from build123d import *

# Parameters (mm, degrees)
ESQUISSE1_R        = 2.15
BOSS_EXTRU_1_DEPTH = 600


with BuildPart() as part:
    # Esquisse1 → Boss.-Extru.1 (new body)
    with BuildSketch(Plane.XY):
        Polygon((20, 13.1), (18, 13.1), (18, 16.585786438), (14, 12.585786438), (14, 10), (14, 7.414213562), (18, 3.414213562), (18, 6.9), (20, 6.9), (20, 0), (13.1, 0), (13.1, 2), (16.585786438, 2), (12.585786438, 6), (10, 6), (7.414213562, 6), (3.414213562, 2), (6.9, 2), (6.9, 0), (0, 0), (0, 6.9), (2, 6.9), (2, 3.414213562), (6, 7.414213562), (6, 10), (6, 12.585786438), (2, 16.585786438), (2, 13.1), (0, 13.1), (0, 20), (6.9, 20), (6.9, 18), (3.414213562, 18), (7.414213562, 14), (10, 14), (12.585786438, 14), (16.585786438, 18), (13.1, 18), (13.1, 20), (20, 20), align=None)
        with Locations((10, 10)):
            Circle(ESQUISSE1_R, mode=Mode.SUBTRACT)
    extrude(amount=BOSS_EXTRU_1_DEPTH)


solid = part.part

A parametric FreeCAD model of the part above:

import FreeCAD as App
import Part
import Sketcher

doc = App.newDocument("Part")
params = doc.addObject("Spreadsheet::Sheet", "Params")
for row, (alias, value) in enumerate([
    ("sketch1_diameter", "4.3 mm"),
    ("sketch1_width", "2 mm"),
    ("sketch1_width2", "6.9 mm"),
    ("pad1_length", "600 mm"),
], start=1):
    params.set(f"A{row}", alias)
    params.set(f"B{row}", "=" + value)
    params.setAlias(f"B{row}", alias)

body = doc.addObject("PartDesign::Body", "Body")

# Sketch on XY plane
sketch1 = doc.addObject("Sketcher::SketchObject", "Sketch")
body.addObject(sketch1)
sketch1.AttachmentSupport = (doc.XY_Plane, [""])
sketch1.MapMode = "FlatFace"
sketch1.addGeometry(Part.LineSegment(App.Vector(18, 13.1, 0), App.Vector(20, 13.1, 0)), False)
sketch1.addGeometry(Part.LineSegment(App.Vector(20, 13.1, 0), App.Vector(20, 20, 0)), False)
sketch1.addGeometry(Part.LineSegment(App.Vector(20, 20, 0), App.Vector(13.1, 20, 0)), False)
sketch1.addGeometry(Part.LineSegment(App.Vector(13.1, 20, 0), App.Vector(13.1, 18, 0)), False)
sketch1.addGeometry(Part.LineSegment(App.Vector(13.1, 18, 0), App.Vector(16.6, 18, 0)), False)
sketch1.addGeometry(Part.LineSegment(App.Vector(16.6, 18, 0), App.Vector(12.6, 14, 0)), False)
sketch1.addGeometry(Part.LineSegment(App.Vector(12.6, 14, 0), App.Vector(7.4, 14, 0)), False)
sketch1.addGeometry(Part.LineSegment(App.Vector(7.4, 14, 0), App.Vector(3.4, 18, 0)), False)
sketch1.addGeometry(Part.LineSegment(App.Vector(3.4, 18, 0), App.Vector(6.9, 18, 0)), False)
sketch1.addGeometry(Part.LineSegment(App.Vector(6.9, 18, 0), App.Vector(6.9, 20, 0)), False)
sketch1.addGeometry(Part.LineSegment(App.Vector(6.9, 20, 0), App.Vector(0, 20, 0)), False)
sketch1.addGeometry(Part.LineSegment(App.Vector(0, 20, 0), App.Vector(0, 13.1, 0)), False)
sketch1.addGeometry(Part.LineSegment(App.Vector(0, 13.1, 0), App.Vector(2, 13.1, 0)), False)
sketch1.addGeometry(Part.LineSegment(App.Vector(2, 13.1, 0), App.Vector(2, 16.6, 0)), False)
sketch1.addGeometry(Part.LineSegment(App.Vector(2, 16.6, 0), App.Vector(6, 12.6, 0)), False)
sketch1.addGeometry(Part.LineSegment(App.Vector(6, 12.6, 0), App.Vector(6, 7.4, 0)), False)
sketch1.addGeometry(Part.LineSegment(App.Vector(6, 7.4, 0), App.Vector(2, 3.4, 0)), False)
sketch1.addGeometry(Part.LineSegment(App.Vector(2, 3.4, 0), App.Vector(2, 6.9, 0)), False)
sketch1.addGeometry(Part.LineSegment(App.Vector(2, 6.9, 0), App.Vector(0, 6.9, 0)), False)
sketch1.addGeometry(Part.LineSegment(App.Vector(0, 6.9, 0), App.Vector(0, 0, 0)), False)
sketch1.addGeometry(Part.LineSegment(App.Vector(0, 0, 0), App.Vector(6.9, 0, 0)), False)
sketch1.addGeometry(Part.LineSegment(App.Vector(6.9, 0, 0), App.Vector(6.9, 2, 0)), False)
sketch1.addGeometry(Part.LineSegment(App.Vector(6.9, 2, 0), App.Vector(3.4, 2, 0)), False)
sketch1.addGeometry(Part.LineSegment(App.Vector(3.4, 2, 0), App.Vector(7.4, 6, 0)), False)
sketch1.addGeometry(Part.LineSegment(App.Vector(7.4, 6, 0), App.Vector(12.6, 6, 0)), False)
sketch1.addGeometry(Part.LineSegment(App.Vector(12.6, 6, 0), App.Vector(16.6, 2, 0)), False)
sketch1.addGeometry(Part.LineSegment(App.Vector(16.6, 2, 0), App.Vector(13.1, 2, 0)), False)
sketch1.addGeometry(Part.LineSegment(App.Vector(13.1, 2, 0), App.Vector(13.1, 0, 0)), False)
sketch1.addGeometry(Part.LineSegment(App.Vector(13.1, 0, 0), App.Vector(20, 0, 0)), False)
sketch1.addGeometry(Part.LineSegment(App.Vector(20, 0, 0), App.Vector(20, 6.9, 0)), False)
sketch1.addGeometry(Part.LineSegment(App.Vector(20, 6.9, 0), App.Vector(18, 6.9, 0)), False)
sketch1.addGeometry(Part.LineSegment(App.Vector(18, 6.9, 0), App.Vector(18, 3.4, 0)), False)
sketch1.addGeometry(Part.LineSegment(App.Vector(18, 3.4, 0), App.Vector(14, 7.4, 0)), False)
sketch1.addGeometry(Part.LineSegment(App.Vector(14, 7.4, 0), App.Vector(14, 12.6, 0)), False)
sketch1.addGeometry(Part.LineSegment(App.Vector(14, 12.6, 0), App.Vector(18, 16.6, 0)), False)
sketch1.addGeometry(Part.LineSegment(App.Vector(18, 16.6, 0), App.Vector(18, 13.1, 0)), False)
sketch1.addGeometry(Part.Circle(App.Vector(10, 10, 0), App.Vector(0, 0, 1), 2.1), False)
sketch1.addConstraint(Sketcher.Constraint("Coincident", 0, 2, 1, 1))
sketch1.addConstraint(Sketcher.Constraint("Coincident", 1, 2, 2, 1))
sketch1.addConstraint(Sketcher.Constraint("Coincident", 2, 2, 3, 1))
sketch1.addConstraint(Sketcher.Constraint("Coincident", 3, 2, 4, 1))
sketch1.addConstraint(Sketcher.Constraint("Coincident", 4, 2, 5, 1))
sketch1.addConstraint(Sketcher.Constraint("Coincident", 5, 2, 6, 1))
sketch1.addConstraint(Sketcher.Constraint("Coincident", 6, 2, 7, 1))
sketch1.addConstraint(Sketcher.Constraint("Coincident", 7, 2, 8, 1))
sketch1.addConstraint(Sketcher.Constraint("Coincident", 8, 2, 9, 1))
sketch1.addConstraint(Sketcher.Constraint("Coincident", 9, 2, 10, 1))
sketch1.addConstraint(Sketcher.Constraint("Coincident", 10, 2, 11, 1))
sketch1.addConstraint(Sketcher.Constraint("Coincident", 11, 2, 12, 1))
sketch1.addConstraint(Sketcher.Constraint("Coincident", 12, 2, 13, 1))
sketch1.addConstraint(Sketcher.Constraint("Coincident", 13, 2, 14, 1))
sketch1.addConstraint(Sketcher.Constraint("Coincident", 14, 2, 15, 1))
sketch1.addConstraint(Sketcher.Constraint("Coincident", 15, 2, 16, 1))
sketch1.addConstraint(Sketcher.Constraint("Coincident", 16, 2, 17, 1))
sketch1.addConstraint(Sketcher.Constraint("Coincident", 17, 2, 18, 1))
sketch1.addConstraint(Sketcher.Constraint("Coincident", 18, 2, 19, 1))
sketch1.addConstraint(Sketcher.Constraint("Coincident", 19, 2, 20, 1))
sketch1.addConstraint(Sketcher.Constraint("Coincident", 20, 2, 21, 1))
sketch1.addConstraint(Sketcher.Constraint("Coincident", 21, 2, 22, 1))
sketch1.addConstraint(Sketcher.Constraint("Coincident", 22, 2, 23, 1))
sketch1.addConstraint(Sketcher.Constraint("Coincident", 23, 2, 24, 1))
sketch1.addConstraint(Sketcher.Constraint("Coincident", 24, 2, 25, 1))
sketch1.addConstraint(Sketcher.Constraint("Coincident", 25, 2, 26, 1))
sketch1.addConstraint(Sketcher.Constraint("Coincident", 26, 2, 27, 1))
sketch1.addConstraint(Sketcher.Constraint("Coincident", 27, 2, 28, 1))
sketch1.addConstraint(Sketcher.Constraint("Coincident", 28, 2, 29, 1))
sketch1.addConstraint(Sketcher.Constraint("Coincident", 29, 2, 30, 1))
sketch1.addConstraint(Sketcher.Constraint("Coincident", 30, 2, 31, 1))
sketch1.addConstraint(Sketcher.Constraint("Coincident", 31, 2, 32, 1))
sketch1.addConstraint(Sketcher.Constraint("Coincident", 32, 2, 33, 1))
sketch1.addConstraint(Sketcher.Constraint("Coincident", 33, 2, 34, 1))
sketch1.addConstraint(Sketcher.Constraint("Coincident", 34, 2, 35, 1))
sketch1.addConstraint(Sketcher.Constraint("Coincident", 35, 2, 0, 1))
sketch1.addConstraint(Sketcher.Constraint("Horizontal", 0))
sketch1.addConstraint(Sketcher.Constraint("Vertical", 1))
sketch1.addConstraint(Sketcher.Constraint("Horizontal", 2))
sketch1.addConstraint(Sketcher.Constraint("Vertical", 3))
sketch1.addConstraint(Sketcher.Constraint("Horizontal", 4))
sketch1.addConstraint(Sketcher.Constraint("Horizontal", 6))
sketch1.addConstraint(Sketcher.Constraint("Horizontal", 8))
sketch1.addConstraint(Sketcher.Constraint("Vertical", 9))
sketch1.addConstraint(Sketcher.Constraint("Horizontal", 10))
sketch1.addConstraint(Sketcher.Constraint("Vertical", 11))
sketch1.addConstraint(Sketcher.Constraint("Horizontal", 12))
sketch1.addConstraint(Sketcher.Constraint("Vertical", 13))
sketch1.addConstraint(Sketcher.Constraint("Vertical", 15))
sketch1.addConstraint(Sketcher.Constraint("Vertical", 17))
sketch1.addConstraint(Sketcher.Constraint("Horizontal", 18))
sketch1.addConstraint(Sketcher.Constraint("Vertical", 19))
sketch1.addConstraint(Sketcher.Constraint("Horizontal", 20))
sketch1.addConstraint(Sketcher.Constraint("Vertical", 21))
sketch1.addConstraint(Sketcher.Constraint("Horizontal", 22))
sketch1.addConstraint(Sketcher.Constraint("Horizontal", 24))
sketch1.addConstraint(Sketcher.Constraint("Horizontal", 26))
sketch1.addConstraint(Sketcher.Constraint("Vertical", 27))
sketch1.addConstraint(Sketcher.Constraint("Horizontal", 28))
sketch1.addConstraint(Sketcher.Constraint("Vertical", 29))
sketch1.addConstraint(Sketcher.Constraint("Horizontal", 30))
sketch1.addConstraint(Sketcher.Constraint("Vertical", 31))
sketch1.addConstraint(Sketcher.Constraint("Vertical", 33))
sketch1.addConstraint(Sketcher.Constraint("Vertical", 35))
sketch1.addConstraint(Sketcher.Constraint("Coincident", 19, 2, -1, 1))
sketch1.addConstraint(Sketcher.Constraint("PointOnObject", 10, 2, -2))
sketch1.addConstraint(Sketcher.Constraint("PointOnObject", 27, 2, -1))
sketch1.addConstraint(Sketcher.Constraint("Perpendicular", 5, 7))
sketch1.addConstraint(Sketcher.Constraint("Parallel", 7, 14))
sketch1.addConstraint(Sketcher.Constraint("Perpendicular", 14, 16))
sketch1.addConstraint(Sketcher.Constraint("Parallel", 16, 23))
sketch1.addConstraint(Sketcher.Constraint("Perpendicular", 23, 25))
sketch1.addConstraint(Sketcher.Constraint("Parallel", 25, 32))
sketch1.addConstraint(Sketcher.Constraint("Perpendicular", 32, 34))
sketch1.addConstraint(Sketcher.Constraint("Horizontal", 4, 2, 7, 2))
sketch1.addConstraint(Sketcher.Constraint("Horizontal", 2, 2, 9, 2))
sketch1.addConstraint(Sketcher.Constraint("Horizontal", 0, 2, 11, 2))
sketch1.addConstraint(Sketcher.Constraint("Horizontal", 22, 2, 25, 2))
sketch1.addConstraint(Sketcher.Constraint("Horizontal", 18, 2, 29, 2))
sketch1.addConstraint(Sketcher.Constraint("Horizontal", 16, 2, 31, 2))
sketch1.addConstraint(Sketcher.Constraint("Horizontal", 15, 2, 32, 2))
sketch1.addConstraint(Sketcher.Constraint("Horizontal", 14, 2, 33, 2))
sketch1.addConstraint(Sketcher.Constraint("Horizontal", 13, 2, 34, 2))
sketch1.addConstraint(Sketcher.Constraint("Vertical", 13, 2, 16, 2))
sketch1.addConstraint(Sketcher.Constraint("Vertical", 9, 2, 20, 2))
sketch1.addConstraint(Sketcher.Constraint("Vertical", 7, 2, 22, 2))
sketch1.addConstraint(Sketcher.Constraint("Vertical", 6, 2, 23, 2))
sketch1.addConstraint(Sketcher.Constraint("Vertical", 5, 2, 24, 2))
sketch1.addConstraint(Sketcher.Constraint("Vertical", 4, 2, 25, 2))
sketch1.addConstraint(Sketcher.Constraint("Vertical", 3, 2, 26, 2))
sketch1.addConstraint(Sketcher.Constraint("Vertical", 1, 2, 28, 2))
sketch1.addConstraint(Sketcher.Constraint("Equal", 4, 8))
sketch1.addConstraint(Sketcher.Constraint("Equal", 2, 10))
sketch1.addConstraint(Sketcher.Constraint("Equal", 0, 12))
sketch1.addConstraint(Sketcher.Constraint("Equal", 28, 1))
sketch1.addConstraint(Sketcher.Constraint("Equal", 30, 3))
sketch1.addConstraint(Sketcher.Constraint("Equal", 26, 13))
sketch1.addConstraint(Sketcher.Constraint("Equal", 24, 15))
sketch1.addConstraint(Sketcher.Constraint("Equal", 13, 17))
sketch1.addConstraint(Sketcher.Constraint("Equal", 11, 19))
sketch1.addConstraint(Sketcher.Constraint("Equal", 9, 21))
sketch1.addConstraint(Sketcher.Constraint("Equal", 7, 14))
sketch1.addConstraint(Sketcher.Constraint("Diameter", 36, 4.3))
sketch1.addConstraint(Sketcher.Constraint("DistanceX", 0, 1, 0, 2, 2.0))
sketch1.addConstraint(Sketcher.Constraint("DistanceX", 2, 2, 2, 1, 6.9))
sketch1.addConstraint(Sketcher.Constraint("DistanceX", -1, 1, 36, 3, 10.0))
sketch1.addConstraint(Sketcher.Constraint("DistanceY", -1, 1, 36, 3, 10.0))
sketch1.addConstraint(Sketcher.Constraint("DistanceX", -1, 1, 0, 2, 20.0))
sketch1.addConstraint(Sketcher.Constraint("DistanceY", -1, 1, 5, 2, 14.0))
sketch1.addConstraint(Sketcher.Constraint("DistanceX", 4, 1, 4, 2, 3.485786))
sketch1.setExpression("Constraints[102]", "Params.sketch1_diameter")
sketch1.setExpression("Constraints[103]", "Params.sketch1_width")
sketch1.setExpression("Constraints[104]", "Params.sketch1_width2")
pad1 = doc.addObject("PartDesign::Pad", "Pad")
body.addObject(pad1)
pad1.Profile = sketch1
pad1.setExpression("Length", "Params.pad1_length")

doc.recompute()
